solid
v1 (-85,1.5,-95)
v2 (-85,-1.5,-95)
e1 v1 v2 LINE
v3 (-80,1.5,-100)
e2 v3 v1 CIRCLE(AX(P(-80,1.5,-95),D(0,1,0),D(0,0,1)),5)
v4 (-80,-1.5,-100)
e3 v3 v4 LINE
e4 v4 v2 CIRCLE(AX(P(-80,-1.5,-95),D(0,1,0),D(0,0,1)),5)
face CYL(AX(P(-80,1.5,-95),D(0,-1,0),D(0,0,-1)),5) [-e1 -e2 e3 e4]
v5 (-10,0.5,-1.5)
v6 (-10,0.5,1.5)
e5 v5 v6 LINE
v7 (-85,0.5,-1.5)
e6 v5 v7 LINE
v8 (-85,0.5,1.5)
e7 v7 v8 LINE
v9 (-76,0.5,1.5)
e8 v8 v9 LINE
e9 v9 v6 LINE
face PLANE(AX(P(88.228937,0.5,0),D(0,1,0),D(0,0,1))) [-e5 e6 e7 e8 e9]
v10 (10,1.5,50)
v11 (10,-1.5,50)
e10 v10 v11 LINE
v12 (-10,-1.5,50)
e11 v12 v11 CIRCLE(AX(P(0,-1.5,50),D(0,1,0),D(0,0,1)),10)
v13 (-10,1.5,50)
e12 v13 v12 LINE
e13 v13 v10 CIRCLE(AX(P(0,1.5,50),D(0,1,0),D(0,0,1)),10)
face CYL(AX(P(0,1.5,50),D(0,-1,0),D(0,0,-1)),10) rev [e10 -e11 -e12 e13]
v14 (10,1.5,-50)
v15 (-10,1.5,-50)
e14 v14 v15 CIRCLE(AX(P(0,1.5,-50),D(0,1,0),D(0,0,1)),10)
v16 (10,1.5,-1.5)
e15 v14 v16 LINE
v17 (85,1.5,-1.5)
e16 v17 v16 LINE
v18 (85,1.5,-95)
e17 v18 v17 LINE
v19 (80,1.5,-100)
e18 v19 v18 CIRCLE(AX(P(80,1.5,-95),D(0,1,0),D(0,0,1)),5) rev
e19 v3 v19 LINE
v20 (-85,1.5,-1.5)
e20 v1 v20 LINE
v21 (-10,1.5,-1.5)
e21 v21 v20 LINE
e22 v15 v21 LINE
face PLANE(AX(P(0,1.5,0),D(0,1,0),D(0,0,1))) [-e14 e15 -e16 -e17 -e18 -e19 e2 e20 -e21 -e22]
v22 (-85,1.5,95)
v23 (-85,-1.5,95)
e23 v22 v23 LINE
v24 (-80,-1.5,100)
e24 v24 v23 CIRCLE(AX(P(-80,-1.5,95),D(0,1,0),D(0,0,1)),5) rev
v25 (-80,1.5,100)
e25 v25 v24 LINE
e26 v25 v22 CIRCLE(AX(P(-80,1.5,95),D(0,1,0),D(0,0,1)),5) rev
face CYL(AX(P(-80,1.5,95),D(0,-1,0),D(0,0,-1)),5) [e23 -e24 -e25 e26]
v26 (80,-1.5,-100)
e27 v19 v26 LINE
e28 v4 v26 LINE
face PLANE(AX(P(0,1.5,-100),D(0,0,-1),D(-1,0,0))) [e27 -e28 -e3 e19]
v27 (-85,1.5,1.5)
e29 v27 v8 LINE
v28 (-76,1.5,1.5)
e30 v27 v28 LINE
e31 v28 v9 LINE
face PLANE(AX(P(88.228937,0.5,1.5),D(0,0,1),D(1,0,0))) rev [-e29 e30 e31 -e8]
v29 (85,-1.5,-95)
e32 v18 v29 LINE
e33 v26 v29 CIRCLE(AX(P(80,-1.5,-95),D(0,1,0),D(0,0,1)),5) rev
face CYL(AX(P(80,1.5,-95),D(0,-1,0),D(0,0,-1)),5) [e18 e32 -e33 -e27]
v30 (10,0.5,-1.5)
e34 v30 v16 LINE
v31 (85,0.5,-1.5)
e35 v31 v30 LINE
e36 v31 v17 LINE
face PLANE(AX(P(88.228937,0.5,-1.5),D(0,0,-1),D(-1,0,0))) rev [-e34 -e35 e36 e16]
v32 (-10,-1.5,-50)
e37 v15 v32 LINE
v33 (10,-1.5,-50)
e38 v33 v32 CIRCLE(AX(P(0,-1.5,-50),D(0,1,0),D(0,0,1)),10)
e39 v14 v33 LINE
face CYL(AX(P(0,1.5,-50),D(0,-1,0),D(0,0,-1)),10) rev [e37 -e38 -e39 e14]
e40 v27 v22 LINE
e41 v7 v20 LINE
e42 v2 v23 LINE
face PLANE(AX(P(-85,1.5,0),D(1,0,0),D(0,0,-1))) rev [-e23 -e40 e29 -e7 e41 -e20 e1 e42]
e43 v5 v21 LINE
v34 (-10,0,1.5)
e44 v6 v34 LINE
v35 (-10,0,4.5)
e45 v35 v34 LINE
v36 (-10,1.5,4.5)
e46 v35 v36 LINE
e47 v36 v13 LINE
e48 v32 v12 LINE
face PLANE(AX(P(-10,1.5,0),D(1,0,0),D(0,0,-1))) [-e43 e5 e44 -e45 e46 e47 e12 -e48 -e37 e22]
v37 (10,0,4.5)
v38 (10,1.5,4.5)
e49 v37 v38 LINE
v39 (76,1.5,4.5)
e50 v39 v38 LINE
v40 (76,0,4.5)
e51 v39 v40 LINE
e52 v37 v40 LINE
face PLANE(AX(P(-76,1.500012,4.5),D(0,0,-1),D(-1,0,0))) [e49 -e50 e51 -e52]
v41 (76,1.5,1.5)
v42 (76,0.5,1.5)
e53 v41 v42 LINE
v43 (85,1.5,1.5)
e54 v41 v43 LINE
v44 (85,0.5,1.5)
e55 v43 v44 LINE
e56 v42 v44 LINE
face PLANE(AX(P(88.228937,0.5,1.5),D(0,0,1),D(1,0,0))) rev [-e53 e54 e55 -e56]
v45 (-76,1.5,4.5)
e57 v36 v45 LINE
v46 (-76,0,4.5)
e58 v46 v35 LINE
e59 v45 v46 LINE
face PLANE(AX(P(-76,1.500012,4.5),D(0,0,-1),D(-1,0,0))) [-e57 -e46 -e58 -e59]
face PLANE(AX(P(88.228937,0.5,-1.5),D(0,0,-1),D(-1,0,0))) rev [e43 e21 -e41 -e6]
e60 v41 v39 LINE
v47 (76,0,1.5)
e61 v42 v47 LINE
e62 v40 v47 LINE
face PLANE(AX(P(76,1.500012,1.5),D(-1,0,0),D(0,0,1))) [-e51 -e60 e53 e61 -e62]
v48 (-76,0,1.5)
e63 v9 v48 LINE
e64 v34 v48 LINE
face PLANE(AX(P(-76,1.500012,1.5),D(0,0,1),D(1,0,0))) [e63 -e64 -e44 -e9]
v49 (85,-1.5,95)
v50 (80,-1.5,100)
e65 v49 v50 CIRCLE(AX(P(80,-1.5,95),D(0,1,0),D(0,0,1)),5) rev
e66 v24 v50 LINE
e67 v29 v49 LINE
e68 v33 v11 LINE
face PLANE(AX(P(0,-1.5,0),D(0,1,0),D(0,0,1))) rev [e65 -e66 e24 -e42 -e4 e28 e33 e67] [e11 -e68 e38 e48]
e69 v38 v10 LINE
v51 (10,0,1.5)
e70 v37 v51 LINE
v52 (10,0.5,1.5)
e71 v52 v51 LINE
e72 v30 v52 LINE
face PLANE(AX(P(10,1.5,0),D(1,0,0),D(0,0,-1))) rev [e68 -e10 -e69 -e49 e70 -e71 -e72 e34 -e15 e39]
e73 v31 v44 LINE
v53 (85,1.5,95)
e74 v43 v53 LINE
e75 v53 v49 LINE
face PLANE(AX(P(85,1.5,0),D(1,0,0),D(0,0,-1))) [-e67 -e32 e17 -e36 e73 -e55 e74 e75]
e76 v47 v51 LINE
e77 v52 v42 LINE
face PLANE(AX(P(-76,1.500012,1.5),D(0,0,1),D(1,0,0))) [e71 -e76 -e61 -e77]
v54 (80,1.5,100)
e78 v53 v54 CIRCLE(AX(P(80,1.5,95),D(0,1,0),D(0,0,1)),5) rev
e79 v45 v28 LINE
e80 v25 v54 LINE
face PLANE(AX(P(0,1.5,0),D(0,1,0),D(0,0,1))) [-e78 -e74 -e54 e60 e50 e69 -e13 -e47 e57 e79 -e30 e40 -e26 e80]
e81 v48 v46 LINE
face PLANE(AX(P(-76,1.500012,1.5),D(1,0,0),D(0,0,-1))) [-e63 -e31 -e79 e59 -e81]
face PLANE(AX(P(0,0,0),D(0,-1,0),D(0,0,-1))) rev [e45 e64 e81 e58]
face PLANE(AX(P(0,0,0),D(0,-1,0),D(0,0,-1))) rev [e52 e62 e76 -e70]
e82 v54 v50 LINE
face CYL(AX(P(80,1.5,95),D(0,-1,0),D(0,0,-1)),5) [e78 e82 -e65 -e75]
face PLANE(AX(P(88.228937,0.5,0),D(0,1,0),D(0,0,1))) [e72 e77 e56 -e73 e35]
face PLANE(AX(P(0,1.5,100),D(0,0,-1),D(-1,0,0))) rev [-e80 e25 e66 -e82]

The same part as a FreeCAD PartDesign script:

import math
import FreeCAD as App
import Part
import Sketcher


def add_polygon(sketch, points):
    """Adds a closed chain of lines whose ends are joined by coincident constraints."""
    first, n = sketch.GeometryCount, len(points)
    for a, b in zip(points, points[1:] + points[:1]):
        sketch.addGeometry(Part.LineSegment(App.Vector(*a, 0), App.Vector(*b, 0)), False)
    for i in range(n):
        sketch.addConstraint(Sketcher.Constraint("Coincident", first + i, 2, first + (i + 1) % n, 1))

doc = App.newDocument("Part")
body = doc.addObject("PartDesign::Body", "Body")

# Sketch on XZ plane
sketch1 = body.newObject("Sketcher::SketchObject", "Sketch")
sketch1.AttachmentSupport = (doc.getObject("XZ_Plane"), [""])
sketch1.MapMode = "FlatFace"
sketch1.addGeometry(Part.LineSegment(App.Vector(80, -100, 0), App.Vector(-80, -100, 0)), False)
sketch1.addGeometry(Part.ArcOfCircle(Part.Circle(App.Vector(-80, -95, 0), App.Vector(0, 0, 1), 5), math.radians(180), math.radians(270)), False)
sketch1.addGeometry(Part.LineSegment(App.Vector(-85, -95, 0), App.Vector(-85, 95, 0)), False)
sketch1.addGeometry(Part.ArcOfCircle(Part.Circle(App.Vector(-80, 95, 0), App.Vector(0, 0, 1), 5), math.radians(90), math.radians(180)), False)
sketch1.addGeometry(Part.LineSegment(App.Vector(-80, 100, 0), App.Vector(80, 100, 0)), False)
sketch1.addGeometry(Part.ArcOfCircle(Part.Circle(App.Vector(80, 95, 0), App.Vector(0, 0, 1), 5), math.radians(0), math.radians(90)), False)
sketch1.addGeometry(Part.LineSegment(App.Vector(85, 95, 0), App.Vector(85, -95, 0)), False)
sketch1.addGeometry(Part.ArcOfCircle(Part.Circle(App.Vector(80, -95, 0), App.Vector(0, 0, 1), 5), math.radians(-90), math.radians(0)), False)
sketch1.addGeometry(Part.LineSegment(App.Vector(10, -50, 0), App.Vector(10, 50, 0)), False)
sketch1.addGeometry(Part.ArcOfCircle(Part.Circle(App.Vector(0, 50, 0), App.Vector(0, 0, 1), 10), math.radians(0), math.radians(180)), False)
sketch1.addGeometry(Part.LineSegment(App.Vector(-10, 50, 0), App.Vector(-10, -50, 0)), False)
sketch1.addGeometry(Part.ArcOfCircle(Part.Circle(App.Vector(0, -50, 0), App.Vector(0, 0, 1), 10), math.radians(180), math.radians(360)), False)
sketch1.addConstraint(Sketcher.Constraint("Tangent", 0, 2, 1, 2))
sketch1.addConstraint(Sketcher.Constraint("Tangent", 1, 1, 2, 1))
sketch1.addConstraint(Sketcher.Constraint("Tangent", 2, 2, 3, 2))
sketch1.addConstraint(Sketcher.Constraint("Tangent", 3, 1, 4, 1))
sketch1.addConstraint(Sketcher.Constraint("Tangent", 4, 2, 5, 2))
sketch1.addConstraint(Sketcher.Constraint("Tangent", 5, 1, 6, 1))
sketch1.addConstraint(Sketcher.Constraint("Tangent", 6, 2, 7, 2))
sketch1.addConstraint(Sketcher.Constraint("Tangent", 7, 1, 0, 1))
sketch1.addConstraint(Sketcher.Constraint("Tangent", 8, 2, 9, 1))
sketch1.addConstraint(Sketcher.Constraint("Tangent", 9, 2, 10, 1))
sketch1.addConstraint(Sketcher.Constraint("Tangent", 10, 2, 11, 1))
sketch1.addConstraint(Sketcher.Constraint("Tangent", 11, 2, 8, 1))
sketch1.addConstraint(Sketcher.Constraint("Horizontal", 0))
sketch1.addConstraint(Sketcher.Constraint("Vertical", 2))
sketch1.addConstraint(Sketcher.Constraint("Horizontal", 4))
sketch1.addConstraint(Sketcher.Constraint("Vertical", 6))
sketch1.addConstraint(Sketcher.Constraint("Vertical", 8))
sketch1.addConstraint(Sketcher.Constraint("Vertical", 10))
sketch1.addConstraint(Sketcher.Constraint("Equal", 1, 3))
sketch1.addConstraint(Sketcher.Constraint("Equal", 3, 5))
sketch1.addConstraint(Sketcher.Constraint("Equal", 5, 7))
sketch1.addConstraint(Sketcher.Constraint("Symmetric", 1, 3, 5, 3, -1, 1))
sketch1.addConstraint(Sketcher.Constraint("Symmetric", 9, 3, 11, 3, -1, 1))
sketch1.addConstraint(Sketcher.Constraint("Radius", 1, 5.0))
sketch1.addConstraint(Sketcher.Constraint("Radius", 9, 10.0))
sketch1.addConstraint(Sketcher.Constraint("DistanceX", 0, 2, 0, 1, 160.0))
sketch1.addConstraint(Sketcher.Constraint("DistanceY", 2, 1, 2, 2, 190.0))
sketch1.addConstraint(Sketcher.Constraint("DistanceY", 8, 1, 8, 2, 100.0))
pad1 = body.newObject("PartDesign::Pad", "Pad")
pad1.Profile = sketch1
pad1.Length = 3
pad1.Midplane = True

# Sketch on XZ plane
sketch2 = body.newObject("Sketcher::SketchObject", "Sketch001")
sketch2.AttachmentSupport = (doc.getObject("XZ_Plane"), [""])
sketch2.MapMode = "FlatFace"
sketch2.AttachmentOffset = App.Placement(App.Vector(0, 0, -1.5), App.Rotation())
add_polygon(sketch2, [(-76, 1.5), (-76, 4.5), (76, 4.5), (76, 1.5)])  # lines 0-3
sketch2.addConstraint(Sketcher.Constraint("Vertical", 0))
sketch2.addConstraint(Sketcher.Constraint("Horizontal", 1))
sketch2.addConstraint(Sketcher.Constraint("Vertical", 2))
sketch2.addConstraint(Sketcher.Constraint("Horizontal", 3))
sketch2.addConstraint(Sketcher.Constraint("DistanceX", 1, 1, 1, 2, 152.0))
sketch2.addConstraint(Sketcher.Constraint("DistanceY", 0, 1, 0, 2, 3.0))
sketch2.addConstraint(Sketcher.Constraint("DistanceX", 0, 2, -1, 1, 76.0))
sketch2.addConstraint(Sketcher.Constraint("DistanceY", -1, 1, 0, 2, 4.5))
pocket1 = body.newObject("PartDesign::Pocket", "Pocket")
pocket1.Profile = sketch2
pocket1.Type = "TwoLengths"
pocket1.Length = 132.27833
pocket1.Length2 = 1.5

# Sketch on XZ plane
sketch3 = body.newObject("Sketcher::SketchObject", "Sketch002")
sketch3.AttachmentSupport = (doc.getObject("XZ_Plane"), [""])
sketch3.MapMode = "FlatFace"
sketch3.AttachmentOffset = App.Placement(App.Vector(0, 0, -1.5), App.Rotation())
sketch3.addGeometry(Part.LineSegment(App.Vector(-88.2, 1.5, 0), App.Vector(88.2, 1.5, 0)), False)
sketch3.addGeometry(Part.ArcOfCircle(Part.Circle(App.Vector(88.2, 0, 0), App.Vector(0, 0, 1), 1.5), math.radians(-90), math.radians(90)), False)
sketch3.addGeometry(Part.LineSegment(App.Vector(88.2, -1.5, 0), App.Vector(-88.2, -1.5, 0)), False)
sketch3.addGeometry(Part.ArcOfCircle(Part.Circle(App.Vector(-88.2, 0, 0), App.Vector(0, 0, 1), 1.5), math.radians(90), math.radians(270)), False)
sketch3.addConstraint(Sketcher.Constraint("Tangent", 0, 2, 1, 2))
sketch3.addConstraint(Sketcher.Constraint("Tangent", 1, 1, 2, 1))
sketch3.addConstraint(Sketcher.Constraint("Tangent", 2, 2, 3, 2))
sketch3.addConstraint(Sketcher.Constraint("Tangent", 3, 1, 0, 1))
sketch3.addConstraint(Sketcher.Constraint("Horizontal", 0))
sketch3.addConstraint(Sketcher.Constraint("Horizontal", 2))
sketch3.addConstraint(Sketcher.Constraint("Symmetric", 1, 3, 3, 3, -1, 1))
sketch3.addConstraint(Sketcher.Constraint("Radius", 1, 1.5))
sketch3.addConstraint(Sketcher.Constraint("DistanceX", 0, 1, 0, 2, 176.457875))
pocket2 = body.newObject("PartDesign::Pocket", "Pocket001")
pocket2.Profile = sketch3
pocket2.Length = 1
pocket2.Reversed = True

doc.recompute()
